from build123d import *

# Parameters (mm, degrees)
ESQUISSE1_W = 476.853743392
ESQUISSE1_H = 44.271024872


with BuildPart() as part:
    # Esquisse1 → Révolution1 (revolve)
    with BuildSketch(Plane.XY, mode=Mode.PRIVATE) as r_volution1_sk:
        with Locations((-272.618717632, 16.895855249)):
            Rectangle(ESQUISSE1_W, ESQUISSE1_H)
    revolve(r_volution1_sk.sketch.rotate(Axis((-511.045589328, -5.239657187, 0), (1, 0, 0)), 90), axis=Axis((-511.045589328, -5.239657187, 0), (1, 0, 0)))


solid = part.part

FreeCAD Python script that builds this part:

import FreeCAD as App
import Part
import Sketcher
from FreeCAD import Vector

doc = App.newDocument("Part")
body = doc.addObject("PartDesign::Body", "Body")

# Sketch on XY plane
sketch1 = doc.addObject("Sketcher::SketchObject", "Sketch")
body.addObject(sketch1)
sketch1.AttachmentSupport = (doc.XY_Plane, [""])
sketch1.MapMode = "FlatFace"
sketch1.addGeometry(Part.LineSegment(Vector(-511.045589, 39.031368, 0), Vector(-511.045589, -5.239657, 0)), False)
sketch1.addGeometry(Part.LineSegment(Vector(-511.045589, -5.239657, 0), Vector(-34.191846, -5.239657, 0)), False)
sketch1.addGeometry(Part.LineSegment(Vector(-34.191846, -5.239657, 0), Vector(-34.191846, 39.031368, 0)), False)
sketch1.addGeometry(Part.LineSegment(Vector(-34.191846, 39.031368, 0), Vector(-511.045589, 39.031368, 0)), False)
sketch1.addGeometry(Part.LineSegment(Vector(-511.045589, -5.239657, 0), Vector(-34.191846, -5.239657, 0)), True)  # axis
sketch1.addConstraint(Sketcher.Constraint("Coincident", 0, 2, 1, 1))
sketch1.addConstraint(Sketcher.Constraint("Coincident", 1, 2, 2, 1))
sketch1.addConstraint(Sketcher.Constraint("Coincident", 2, 2, 3, 1))
sketch1.addConstraint(Sketcher.Constraint("Coincident", 3, 2, 0, 1))
sketch1.addConstraint(Sketcher.Constraint("Vertical", 0))
sketch1.addConstraint(Sketcher.Constraint("Horizontal", 1))
sketch1.addConstraint(Sketcher.Constraint("Vertical", 2))
sketch1.addConstraint(Sketcher.Constraint("Horizontal", 3))
sketch1.addConstraint(Sketcher.Constraint("Horizontal", 4))
sketch1.addConstraint(Sketcher.Constraint("Coincident", 4, 1, 0, 2))
sketch1.addConstraint(Sketcher.Constraint("Vertical", 2, 2, 4, 2))
sketch1.addConstraint(Sketcher.Constraint("DistanceX", 1, 1, 1, 2, 476.853743))
sketch1.addConstraint(Sketcher.Constraint("DistanceY", 0, 2, 0, 1, 44.271025))
sketch1.addConstraint(Sketcher.Constraint("DistanceX", 0, 2, -1, 1, 511.045589))
sketch1.addConstraint(Sketcher.Constraint("DistanceY", 0, 2, -1, 1, 5.239657))
revolution = doc.addObject("PartDesign::Revolution", "Revolution")
body.addObject(revolution)
revolution.Profile = sketch1
revolution.ReferenceAxis = (sketch1, ["Axis0"])
revolution.Angle = 360

doc.recompute()
